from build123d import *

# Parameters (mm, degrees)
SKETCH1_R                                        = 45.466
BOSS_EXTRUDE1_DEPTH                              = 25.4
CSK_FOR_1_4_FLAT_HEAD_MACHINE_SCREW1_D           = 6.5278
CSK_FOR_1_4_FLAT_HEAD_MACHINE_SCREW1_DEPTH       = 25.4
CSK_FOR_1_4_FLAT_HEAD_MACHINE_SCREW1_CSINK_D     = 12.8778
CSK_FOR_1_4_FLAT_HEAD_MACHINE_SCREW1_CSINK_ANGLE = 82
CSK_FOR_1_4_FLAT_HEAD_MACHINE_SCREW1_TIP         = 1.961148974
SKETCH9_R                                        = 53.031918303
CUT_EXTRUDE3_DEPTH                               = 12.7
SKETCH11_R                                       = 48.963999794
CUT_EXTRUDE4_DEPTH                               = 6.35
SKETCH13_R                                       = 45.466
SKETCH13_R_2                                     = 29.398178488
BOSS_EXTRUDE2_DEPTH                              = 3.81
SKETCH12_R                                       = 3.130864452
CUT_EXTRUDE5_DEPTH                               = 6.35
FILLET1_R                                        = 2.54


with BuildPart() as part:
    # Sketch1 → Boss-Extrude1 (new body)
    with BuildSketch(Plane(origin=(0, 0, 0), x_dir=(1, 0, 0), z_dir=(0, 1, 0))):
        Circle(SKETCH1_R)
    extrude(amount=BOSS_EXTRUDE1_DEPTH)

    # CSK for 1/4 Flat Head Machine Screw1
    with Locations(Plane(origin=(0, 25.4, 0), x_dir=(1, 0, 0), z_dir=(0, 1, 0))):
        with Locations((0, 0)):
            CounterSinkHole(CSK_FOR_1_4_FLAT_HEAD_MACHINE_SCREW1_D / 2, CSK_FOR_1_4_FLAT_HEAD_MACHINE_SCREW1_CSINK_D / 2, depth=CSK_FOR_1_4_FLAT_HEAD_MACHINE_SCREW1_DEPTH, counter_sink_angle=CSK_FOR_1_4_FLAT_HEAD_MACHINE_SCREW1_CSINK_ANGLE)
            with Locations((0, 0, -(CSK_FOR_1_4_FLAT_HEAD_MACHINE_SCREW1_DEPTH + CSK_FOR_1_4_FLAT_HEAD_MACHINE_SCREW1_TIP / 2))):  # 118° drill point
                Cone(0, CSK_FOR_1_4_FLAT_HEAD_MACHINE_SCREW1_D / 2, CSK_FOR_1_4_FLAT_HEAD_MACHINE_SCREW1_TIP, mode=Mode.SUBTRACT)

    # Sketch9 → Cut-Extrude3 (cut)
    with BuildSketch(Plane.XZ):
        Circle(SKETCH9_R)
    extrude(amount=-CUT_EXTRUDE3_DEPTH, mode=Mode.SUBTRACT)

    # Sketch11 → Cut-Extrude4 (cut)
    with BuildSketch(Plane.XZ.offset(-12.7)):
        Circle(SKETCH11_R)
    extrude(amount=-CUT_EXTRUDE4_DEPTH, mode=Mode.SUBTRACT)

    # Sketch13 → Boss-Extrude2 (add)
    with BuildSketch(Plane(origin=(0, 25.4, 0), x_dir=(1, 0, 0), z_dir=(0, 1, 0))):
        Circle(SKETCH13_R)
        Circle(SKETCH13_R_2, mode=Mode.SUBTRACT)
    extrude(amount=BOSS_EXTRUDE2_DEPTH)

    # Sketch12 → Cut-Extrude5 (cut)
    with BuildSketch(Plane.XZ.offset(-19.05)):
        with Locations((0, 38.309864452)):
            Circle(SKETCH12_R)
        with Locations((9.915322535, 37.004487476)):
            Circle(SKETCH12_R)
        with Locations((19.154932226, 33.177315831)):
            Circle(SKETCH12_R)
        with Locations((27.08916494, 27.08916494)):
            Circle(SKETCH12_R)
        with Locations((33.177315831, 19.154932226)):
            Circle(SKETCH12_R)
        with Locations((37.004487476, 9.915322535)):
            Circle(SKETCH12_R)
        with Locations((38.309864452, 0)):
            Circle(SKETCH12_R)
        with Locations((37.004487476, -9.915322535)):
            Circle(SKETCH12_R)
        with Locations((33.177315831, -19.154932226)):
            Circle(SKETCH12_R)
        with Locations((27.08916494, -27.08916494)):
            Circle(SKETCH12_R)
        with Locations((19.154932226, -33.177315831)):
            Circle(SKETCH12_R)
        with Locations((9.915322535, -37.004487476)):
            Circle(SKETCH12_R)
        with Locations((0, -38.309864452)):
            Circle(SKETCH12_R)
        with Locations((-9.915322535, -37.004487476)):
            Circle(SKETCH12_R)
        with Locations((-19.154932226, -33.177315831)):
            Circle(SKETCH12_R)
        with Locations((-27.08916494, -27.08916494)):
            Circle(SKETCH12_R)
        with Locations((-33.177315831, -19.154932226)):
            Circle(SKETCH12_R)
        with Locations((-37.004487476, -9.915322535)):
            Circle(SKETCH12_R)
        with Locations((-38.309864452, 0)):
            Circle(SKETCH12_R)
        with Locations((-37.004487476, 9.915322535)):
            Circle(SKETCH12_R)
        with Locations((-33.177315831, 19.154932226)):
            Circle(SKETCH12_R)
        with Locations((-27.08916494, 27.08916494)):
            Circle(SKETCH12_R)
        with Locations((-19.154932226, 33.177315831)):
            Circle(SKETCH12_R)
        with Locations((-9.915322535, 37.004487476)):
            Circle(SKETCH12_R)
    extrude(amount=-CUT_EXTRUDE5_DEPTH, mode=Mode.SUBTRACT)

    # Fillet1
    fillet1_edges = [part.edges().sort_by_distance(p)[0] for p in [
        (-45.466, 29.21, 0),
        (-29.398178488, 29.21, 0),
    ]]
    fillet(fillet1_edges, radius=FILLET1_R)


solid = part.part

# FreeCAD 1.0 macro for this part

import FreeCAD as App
import Part
import Sketcher
Q = App.Units.Quantity


def edges_at(feature, points):
    """Names of the edges that pass closest to the given points."""
    edges = feature.Shape.Edges
    near = lambda p: min(range(len(edges)), key=lambda i: edges[i].distToShape(Part.Vertex(*p))[0])
    return sorted({f"Edge{near(p) + 1}" for p in points})

doc = App.newDocument("Part")
params = doc.addObject("Spreadsheet::Sheet", "Params")
for row, (alias, value) in enumerate([
    ("sketch1_diameter", "3.58 in"),
    ("pad1_length", "1 in"),
    ("sketch2_diameter", "0.257 in"),
    ("hole_diameter", "0.257 in"),
    ("hole_depth", "1 in"),
    ("hole_csink_diameter", "0.507 in"),
    ("pocket1_length", "0.5 in"),
    ("pocket2_length", "0.25 in"),
    ("sketch5_diameter", "3.58 in"),
    ("pad2_length", "0.15 in"),
    ("pocket3_length", "0.25 in"),
    ("fillet_radius", "0.1 in"),
], start=1):
    params.set(f"A{row}", alias)
    params.set(f"B{row}", "=" + value)
    params.setAlias(f"B{row}", alias)

body = doc.addObject("PartDesign::Body", "Body")

# Sketch on XZ plane
sketch1 = body.newObject("Sketcher::SketchObject", "Sketch")
sketch1.AttachmentSupport = (doc.getObject("XZ_Plane"), [""])
sketch1.MapMode = "FlatFace"
sketch1.addGeometry(Part.Circle(App.Vector(0, 0, 0), App.Vector(0, 0, 1), 45), False)
sketch1.addConstraint(Sketcher.Constraint("Coincident", 0, 3, -1, 1))
sketch1.addConstraint(Sketcher.Constraint("Diameter", 0, Q("3.58 in")))
sketch1.setExpression("Constraints[1]", "Params.sketch1_diameter")
pad1 = body.newObject("PartDesign::Pad", "Pad")
pad1.Profile = sketch1
pad1.setExpression("Length", "Params.pad1_length")
pad1.Reversed = True

# Sketch on XZ plane
sketch2 = body.newObject("Sketcher::SketchObject", "Sketch001")
sketch2.AttachmentSupport = (doc.getObject("XZ_Plane"), [""])
sketch2.MapMode = "FlatFace"
sketch2.AttachmentOffset = App.Placement(App.Vector(0, 0, -1 * 25.4), App.Rotation())
sketch2.addGeometry(Part.Circle(App.Vector(0, 0, 0), App.Vector(0, 0, 1), 3.3), False)
sketch2.addConstraint(Sketcher.Constraint("Coincident", 0, 3, -1, 1))
sketch2.addConstraint(Sketcher.Constraint("Diameter", 0, Q("0.257 in")))
sketch2.setExpression("Constraints[1]", "Params.sketch2_diameter")
doc.recompute()
hole = body.newObject("PartDesign::Hole", "Hole")
hole.Profile = sketch2
hole.ThreadType = "None"
hole.setExpression("Diameter", "Params.hole_diameter")
hole.DepthType = "Dimension"
hole.setExpression("Depth", "Params.hole_depth")
hole.DrillPoint = "Angled"
hole.DrillPointAngle = 118
hole.HoleCutType = "Countersink"
hole.setExpression("HoleCutDiameter", "Params.hole_csink_diameter")
hole.HoleCutCountersinkAngle = 82
hole.Reversed = True

# Sketch on XZ plane
sketch3 = body.newObject("Sketcher::SketchObject", "Sketch002")
sketch3.AttachmentSupport = (doc.getObject("XZ_Plane"), [""])
sketch3.MapMode = "FlatFace"
sketch3.addGeometry(Part.Circle(App.Vector(0, 0, 0), App.Vector(0, 0, 1), 53), False)
sketch3.addConstraint(Sketcher.Constraint("Coincident", 0, 3, -1, 1))
sketch3.addConstraint(Sketcher.Constraint("Diameter", 0, 106.063837))
pocket1 = body.newObject("PartDesign::Pocket", "Pocket")
pocket1.Profile = sketch3
pocket1.setExpression("Length", "Params.pocket1_length")

# Sketch on XZ plane
sketch4 = body.newObject("Sketcher::SketchObject", "Sketch003")
sketch4.AttachmentSupport = (doc.getObject("XZ_Plane"), [""])
sketch4.MapMode = "FlatFace"
sketch4.AttachmentOffset = App.Placement(App.Vector(0, 0, -0.5 * 25.4), App.Rotation())
sketch4.addGeometry(Part.Circle(App.Vector(0, 0, 0), App.Vector(0, 0, 1), 49), False)
sketch4.addConstraint(Sketcher.Constraint("Coincident", 0, 3, -1, 1))
sketch4.addConstraint(Sketcher.Constraint("Diameter", 0, 97.928))
pocket2 = body.newObject("PartDesign::Pocket", "Pocket001")
pocket2.Profile = sketch4
pocket2.setExpression("Length", "Params.pocket2_length")

# Sketch on XZ plane
sketch5 = body.newObject("Sketcher::SketchObject", "Sketch004")
sketch5.AttachmentSupport = (doc.getObject("XZ_Plane"), [""])
sketch5.MapMode = "FlatFace"
sketch5.AttachmentOffset = App.Placement(App.Vector(0, 0, -1 * 25.4), App.Rotation())
sketch5.addGeometry(Part.Circle(App.Vector(0, 0, 0), App.Vector(0, 0, 1), 45), False)
sketch5.addGeometry(Part.Circle(App.Vector(0, 0, 0), App.Vector(0, 0, 1), 29), False)
sketch5.addConstraint(Sketcher.Constraint("Coincident", 0, 3, -1, 1))
sketch5.addConstraint(Sketcher.Constraint("Coincident", 1, 3, -1, 1))
sketch5.addConstraint(Sketcher.Constraint("Diameter", 0, Q("3.58 in")))
sketch5.addConstraint(Sketcher.Constraint("Diameter", 1, 58.796357))
sketch5.setExpression("Constraints[2]", "Params.sketch5_diameter")
pad2 = body.newObject("PartDesign::Pad", "Pad001")
pad2.Profile = sketch5
pad2.setExpression("Length", "Params.pad2_length")
pad2.Reversed = True

# Sketch on XZ plane
sketch6 = body.newObject("Sketcher::SketchObject", "Sketch005")
sketch6.AttachmentSupport = (doc.getObject("XZ_Plane"), [""])
sketch6.MapMode = "FlatFace"
sketch6.AttachmentOffset = App.Placement(App.Vector(0, 0, -0.75 * 25.4), App.Rotation())
sketch6.addGeometry(Part.Circle(App.Vector(0, 38.3, 0), App.Vector(0, 0, 1), 3.1), False)
sketch6.addGeometry(Part.Circle(App.Vector(9.9, 37, 0), App.Vector(0, 0, 1), 3.1), False)
sketch6.addGeometry(Part.Circle(App.Vector(19.2, 33.2, 0), App.Vector(0, 0, 1), 3.1), False)
sketch6.addGeometry(Part.Circle(App.Vector(27.1, 27.1, 0), App.Vector(0, 0, 1), 3.1), False)
sketch6.addGeometry(Part.Circle(App.Vector(33.2, 19.2, 0), App.Vector(0, 0, 1), 3.1), False)
sketch6.addGeometry(Part.Circle(App.Vector(37, 9.9, 0), App.Vector(0, 0, 1), 3.1), False)
sketch6.addGeometry(Part.Circle(App.Vector(38.3, 0, 0), App.Vector(0, 0, 1), 3.1), False)
sketch6.addGeometry(Part.Circle(App.Vector(37, -9.9, 0), App.Vector(0, 0, 1), 3.1), False)
sketch6.addGeometry(Part.Circle(App.Vector(33.2, -19.2, 0), App.Vector(0, 0, 1), 3.1), False)
sketch6.addGeometry(Part.Circle(App.Vector(27.1, -27.1, 0), App.Vector(0, 0, 1), 3.1), False)
sketch6.addGeometry(Part.Circle(App.Vector(19.2, -33.2, 0), App.Vector(0, 0, 1), 3.1), False)
sketch6.addGeometry(Part.Circle(App.Vector(9.9, -37, 0), App.Vector(0, 0, 1), 3.1), False)
sketch6.addGeometry(Part.Circle(App.Vector(0, -38.3, 0), App.Vector(0, 0, 1), 3.1), False)
sketch6.addGeometry(Part.Circle(App.Vector(-9.9, -37, 0), App.Vector(0, 0, 1), 3.1), False)
sketch6.addGeometry(Part.Circle(App.Vector(-19.2, -33.2, 0), App.Vector(0, 0, 1), 3.1), False)
sketch6.addGeometry(Part.Circle(App.Vector(-27.1, -27.1, 0), App.Vector(0, 0, 1), 3.1), False)
sketch6.addGeometry(Part.Circle(App.Vector(-33.2, -19.2, 0), App.Vector(0, 0, 1), 3.1), False)
sketch6.addGeometry(Part.Circle(App.Vector(-37, -9.9, 0), App.Vector(0, 0, 1), 3.1), False)
sketch6.addGeometry(Part.Circle(App.Vector(-38.3, 0, 0), App.Vector(0, 0, 1), 3.1), False)
sketch6.addGeometry(Part.Circle(App.Vector(-37, 9.9, 0), App.Vector(0, 0, 1), 3.1), False)
sketch6.addGeometry(Part.Circle(App.Vector(-33.2, 19.2, 0), App.Vector(0, 0, 1), 3.1), False)
sketch6.addGeometry(Part.Circle(App.Vector(-27.1, 27.1, 0), App.Vector(0, 0, 1), 3.1), False)
sketch6.addGeometry(Part.Circle(App.Vector(-19.2, 33.2, 0), App.Vector(0, 0, 1), 3.1), False)
sketch6.addGeometry(Part.Circle(App.Vector(-9.9, 37, 0), App.Vector(0, 0, 1), 3.1), False)
sketch6.addConstraint(Sketcher.Constraint("Equal", 0, 1))
sketch6.addConstraint(Sketcher.Constraint("Equal", 1, 2))
sketch6.addConstraint(Sketcher.Constraint("Equal", 2, 3))
sketch6.addConstraint(Sketcher.Constraint("Equal", 3, 4))
sketch6.addConstraint(Sketcher.Constraint("Equal", 4, 5))
sketch6.addConstraint(Sketcher.Constraint("Equal", 5, 6))
sketch6.addConstraint(Sketcher.Constraint("Equal", 6, 7))
sketch6.addConstraint(Sketcher.Constraint("Equal", 7, 8))
sketch6.addConstraint(Sketcher.Constraint("Equal", 8, 9))
sketch6.addConstraint(Sketcher.Constraint("Equal", 9, 10))
sketch6.addConstraint(Sketcher.Constraint("Equal", 10, 11))
sketch6.addConstraint(Sketcher.Constraint("Equal", 11, 12))
sketch6.addConstraint(Sketcher.Constraint("Equal", 12, 13))
sketch6.addConstraint(Sketcher.Constraint("Equal", 13, 14))
sketch6.addConstraint(Sketcher.Constraint("Equal", 14, 15))
sketch6.addConstraint(Sketcher.Constraint("Equal", 15, 16))
sketch6.addConstraint(Sketcher.Constraint("Equal", 16, 17))
sketch6.addConstraint(Sketcher.Constraint("Equal", 17, 18))
sketch6.addConstraint(Sketcher.Constraint("Equal", 18, 19))
sketch6.addConstraint(Sketcher.Constraint("Equal", 19, 20))
sketch6.addConstraint(Sketcher.Constraint("Equal", 20, 21))
sketch6.addConstraint(Sketcher.Constraint("Equal", 21, 22))
sketch6.addConstraint(Sketcher.Constraint("Equal", 22, 23))
sketch6.addConstraint(Sketcher.Constraint("Symmetric", 0, 3, 12, 3, -1, 1))
sketch6.addConstraint(Sketcher.Constraint("Symmetric", 1, 3, 13, 3, -1, 1))
sketch6.addConstraint(Sketcher.Constraint("Symmetric", 2, 3, 14, 3, -1, 1))
sketch6.addConstraint(Sketcher.Constraint("Symmetric", 3, 3, 15, 3, -1, 1))
sketch6.addConstraint(Sketcher.Constraint("Symmetric", 4, 3, 16, 3, -1, 1))
sketch6.addConstraint(Sketcher.Constraint("Symmetric", 5, 3, 17, 3, -1, 1))
sketch6.addConstraint(Sketcher.Constraint("Symmetric", 6, 3, 18, 3, -1, 1))
sketch6.addConstraint(Sketcher.Constraint("Symmetric", 7, 3, 19, 3, -1, 1))
sketch6.addConstraint(Sketcher.Constraint("Symmetric", 8, 3, 20, 3, -1, 1))
sketch6.addConstraint(Sketcher.Constraint("Symmetric", 9, 3, 21, 3, -1, 1))
sketch6.addConstraint(Sketcher.Constraint("Symmetric", 10, 3, 22, 3, -1, 1))
sketch6.addConstraint(Sketcher.Constraint("Symmetric", 11, 3, 23, 3, -1, 1))
sketch6.addConstraint(Sketcher.Constraint("Symmetric", 11, 3, 13, 3, -2))
sketch6.addConstraint(Sketcher.Constraint("Symmetric", 10, 3, 14, 3, -2))
sketch6.addConstraint(Sketcher.Constraint("Symmetric", 9, 3, 15, 3, -2))
sketch6.addConstraint(Sketcher.Constraint("Symmetric", 8, 3, 16, 3, -2))
sketch6.addConstraint(Sketcher.Constraint("Symmetric", 7, 3, 17, 3, -2))
sketch6.addConstraint(Sketcher.Constraint("PointOnObject", 0, 3, -2))
sketch6.addConstraint(Sketcher.Constraint("PointOnObject", 6, 3, -1))
sketch6.addConstraint(Sketcher.Constraint("Diameter", 0, 6.261729))
sketch6.addConstraint(Sketcher.Constraint("DistanceY", 3, 3, 0, 3, 11.2207))
sketch6.addConstraint(Sketcher.Constraint("DistanceX", 3, 3, 6, 3, 11.2207))
sketch6.addConstraint(Sketcher.Constraint("DistanceX", 1, 3, 2, 3, 9.23961))
sketch6.addConstraint(Sketcher.Constraint("DistanceY", 2, 3, 1, 3, 3.827172))
sketch6.addConstraint(Sketcher.Constraint("DistanceY", 2, 3, 0, 3, 5.132549))
sketch6.addConstraint(Sketcher.Constraint("DistanceX", 3, 3, 4, 3, 6.088151))
sketch6.addConstraint(Sketcher.Constraint("DistanceX", 4, 3, 5, 3, 3.827172))
sketch6.addConstraint(Sketcher.Constraint("DistanceY", 5, 3, 4, 3, 9.23961))
sketch6.addConstraint(Sketcher.Constraint("DistanceY", 5, 3, 0, 3, 28.394542))
sketch6.addConstraint(Sketcher.Constraint("DistanceX", 1, 3, 6, 3, 28.394542))
sketch6.addConstraint(Sketcher.Constraint("DistanceY", 7, 3, 2, 3, 43.092638))
sketch6.addConstraint(Sketcher.Constraint("DistanceX", 13, 3, 8, 3, 43.092638))
pocket3 = body.newObject("PartDesign::Pocket", "Pocket002")
pocket3.Profile = sketch6
pocket3.setExpression("Length", "Params.pocket3_length")
doc.recompute()

fillet = body.newObject("PartDesign::Fillet", "Fillet")
fillet.Base = (pocket3, edges_at(pocket3, [(-45.466, 29.21, 0), (-29.398, 29.21, 0)]))
fillet.setExpression("Radius", "Params.fillet_radius")

doc.recompute()
